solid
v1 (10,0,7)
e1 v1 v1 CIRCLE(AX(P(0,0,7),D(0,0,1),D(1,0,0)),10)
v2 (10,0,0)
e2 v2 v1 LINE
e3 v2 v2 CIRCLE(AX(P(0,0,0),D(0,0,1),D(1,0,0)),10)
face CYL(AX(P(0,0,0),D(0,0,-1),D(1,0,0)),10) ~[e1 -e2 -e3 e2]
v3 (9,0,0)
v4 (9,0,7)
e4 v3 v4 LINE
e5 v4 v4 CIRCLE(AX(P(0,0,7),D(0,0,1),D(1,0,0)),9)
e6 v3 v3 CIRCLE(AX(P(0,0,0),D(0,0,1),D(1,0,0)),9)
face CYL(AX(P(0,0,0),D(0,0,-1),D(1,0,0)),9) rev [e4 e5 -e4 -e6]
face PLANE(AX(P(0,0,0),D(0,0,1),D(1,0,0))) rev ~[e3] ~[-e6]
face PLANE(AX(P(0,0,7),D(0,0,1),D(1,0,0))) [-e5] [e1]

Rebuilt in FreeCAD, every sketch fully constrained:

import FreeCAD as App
import Part
import Sketcher
from FreeCAD import Vector

doc = App.newDocument("Part")
body = doc.addObject("PartDesign::Body", "Body")

sketch1 = body.newObject("Sketcher::SketchObject", "Sketch")
sketch1.AttachmentSupport = (doc.getObject("XY_Plane"), [""])
sketch1.MapMode = "FlatFace"
sketch1.addGeometry([
    Part.Circle(Vector(0, 0, 0), Vector(0, 0, 1), 10),
    Part.Circle(Vector(0, 0, 0), Vector(0, 0, 1), 9),
], False)
sketch1.addConstraint([
    Sketcher.Constraint("Coincident", 0, 3, -1, 1),
    Sketcher.Constraint("Coincident", 1, 3, -1, 1),
    Sketcher.Constraint("Diameter", 0, 20.0),
    Sketcher.Constraint("Diameter", 1, 18.0),
])
pad1 = body.newObject("PartDesign::Pad", "Pad")
pad1.Profile = sketch1
pad1.Length = 7

doc.recompute()
